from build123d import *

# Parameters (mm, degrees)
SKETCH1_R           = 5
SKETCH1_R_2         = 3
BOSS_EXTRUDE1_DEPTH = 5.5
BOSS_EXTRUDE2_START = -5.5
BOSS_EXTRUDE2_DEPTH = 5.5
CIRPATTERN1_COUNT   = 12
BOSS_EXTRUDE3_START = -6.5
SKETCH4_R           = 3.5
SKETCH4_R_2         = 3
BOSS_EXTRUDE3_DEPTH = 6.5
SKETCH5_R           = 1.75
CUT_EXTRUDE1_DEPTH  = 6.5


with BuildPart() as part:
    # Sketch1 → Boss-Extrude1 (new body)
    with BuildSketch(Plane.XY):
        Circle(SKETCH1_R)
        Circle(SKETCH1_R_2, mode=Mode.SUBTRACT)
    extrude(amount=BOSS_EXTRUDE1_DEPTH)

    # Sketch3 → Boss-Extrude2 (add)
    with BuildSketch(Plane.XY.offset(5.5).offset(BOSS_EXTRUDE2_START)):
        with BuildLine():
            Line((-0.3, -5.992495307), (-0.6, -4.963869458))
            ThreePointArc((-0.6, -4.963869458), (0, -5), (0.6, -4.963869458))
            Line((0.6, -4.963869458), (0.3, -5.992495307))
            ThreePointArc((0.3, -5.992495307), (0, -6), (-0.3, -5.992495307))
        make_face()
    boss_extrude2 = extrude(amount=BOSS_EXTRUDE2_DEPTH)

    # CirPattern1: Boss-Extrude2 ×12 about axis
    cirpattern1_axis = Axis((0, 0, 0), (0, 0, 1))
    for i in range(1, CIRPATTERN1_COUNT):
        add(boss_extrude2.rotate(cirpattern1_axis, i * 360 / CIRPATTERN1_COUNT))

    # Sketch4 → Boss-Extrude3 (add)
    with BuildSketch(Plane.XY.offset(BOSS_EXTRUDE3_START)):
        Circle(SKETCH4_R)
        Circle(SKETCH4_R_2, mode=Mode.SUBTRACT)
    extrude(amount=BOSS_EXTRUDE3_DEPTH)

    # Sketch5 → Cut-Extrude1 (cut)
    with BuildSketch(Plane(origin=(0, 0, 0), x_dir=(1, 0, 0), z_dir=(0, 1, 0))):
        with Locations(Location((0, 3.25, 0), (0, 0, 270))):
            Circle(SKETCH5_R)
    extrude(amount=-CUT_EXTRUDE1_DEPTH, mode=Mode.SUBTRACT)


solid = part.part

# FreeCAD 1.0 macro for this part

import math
import FreeCAD as App
import Part
import Sketcher

V = App.Vector
Q = App.Units.Quantity

doc = App.newDocument("Part")
body = doc.addObject("PartDesign::Body", "Body")

# Sketch on XY plane
sketch1 = body.newObject("Sketcher::SketchObject", "Sketch")
sketch1.AttachmentSupport = (doc.getObject("XY_Plane"), [""])
sketch1.MapMode = "FlatFace"
sketch1.addGeometry([
    Part.Circle(V(0, 0, 0), V(0, 0, 1), 5),
    Part.Circle(V(0, 0, 0), V(0, 0, 1), 3),
], False)
sketch1.addConstraint([
    Sketcher.Constraint("Coincident", 0, 3, -1, 1),
    Sketcher.Constraint("Coincident", 1, 3, -1, 1),
    Sketcher.Constraint("Diameter", 0, Q("10 mm")),
    Sketcher.Constraint("Diameter", 1, Q("6 mm")),
])
pad1 = body.newObject("PartDesign::Pad", "Pad")
pad1.Profile = sketch1
pad1.Length = 5.5

# Sketch on XY plane
sketch2 = body.newObject("Sketcher::SketchObject", "Sketch001")
sketch2.AttachmentSupport = (doc.getObject("XY_Plane"), [""])
sketch2.MapMode = "FlatFace"
sketch2.addGeometry([
    Part.LineSegment(V(-0.6, -5, 0), V(-0.3, -6, 0)),
    Part.ArcOfCircle(Part.Circle(V(0, 0, 0), V(0, 0, 1), 6), math.radians(-92.87), math.radians(-87.13)),
    Part.LineSegment(V(0.3, -6, 0), V(0.6, -5, 0)),
    Part.ArcOfCircle(Part.Circle(V(0, 0, 0), V(0, 0, 1), 5), math.radians(-96.89), math.radians(-83.11)),
], False)
sketch2.addConstraint([
    Sketcher.Constraint("Coincident", 0, 2, 1, 1),
    Sketcher.Constraint("Coincident", 1, 2, 2, 1),
    Sketcher.Constraint("Coincident", 2, 2, 3, 2),
    Sketcher.Constraint("Coincident", 3, 1, 0, 1),
    Sketcher.Constraint("Coincident", 1, 3, -1, 1),
    Sketcher.Constraint("Coincident", 3, 3, -1, 1),
    Sketcher.Constraint("Horizontal", 0, 2, 1, 2),
    Sketcher.Constraint("Horizontal", 2, 2, 3, 1),
    Sketcher.Constraint("Radius", 1, Q("6 mm")),
    Sketcher.Constraint("Radius", 3, Q("5 mm")),
    Sketcher.Constraint("DistanceX", 0, 2, -1, 1, Q("0.3 mm")),
    Sketcher.Constraint("DistanceX", -1, 1, 2, 2, Q("0.6 mm")),
])
pad2 = body.newObject("PartDesign::Pad", "Pad001")
pad2.Profile = sketch2
pad2.Length = 5.5
doc.recompute()

polarpattern = body.newObject("PartDesign::PolarPattern", "PolarPattern")
polarpattern.Originals = [pad2]
polarpattern.Axis = (doc.getObject("Z_Axis"), [""])
polarpattern.Angle = 360
polarpattern.Occurrences = 12
body.Tip = polarpattern

# Sketch on XY plane
sketch3 = body.newObject("Sketcher::SketchObject", "Sketch002")
sketch3.AttachmentSupport = (doc.getObject("XY_Plane"), [""])
sketch3.MapMode = "FlatFace"
sketch3.AttachmentOffset = App.Placement(V(0, 0, -6.5), App.Rotation())
sketch3.addGeometry([
    Part.Circle(V(0, 0, 0), V(0, 0, 1), 3.5),
    Part.Circle(V(0, 0, 0), V(0, 0, 1), 3),
], False)
sketch3.addConstraint([
    Sketcher.Constraint("Coincident", 0, 3, -1, 1),
    Sketcher.Constraint("Coincident", 1, 3, -1, 1),
    Sketcher.Constraint("Diameter", 0, Q("7 mm")),
    Sketcher.Constraint("Diameter", 1, Q("6 mm")),
])
pad3 = body.newObject("PartDesign::Pad", "Pad002")
pad3.Profile = sketch3
pad3.Length = 6.5

# Sketch on XZ plane
sketch4 = body.newObject("Sketcher::SketchObject", "Sketch003")
sketch4.AttachmentSupport = (doc.getObject("XZ_Plane"), [""])
sketch4.MapMode = "FlatFace"
sketch4.addGeometry(Part.Circle(V(0, -3.2, 0), V(0, 0, 1), 1.8), False)
sketch4.addConstraint([
    Sketcher.Constraint("PointOnObject", 0, 3, -2),
    Sketcher.Constraint("Diameter", 0, Q("3.5 mm")),
    Sketcher.Constraint("DistanceY", 0, 3, -1, 1, Q("3.25 mm")),
])
pocket1 = body.newObject("PartDesign::Pocket", "Pocket")
pocket1.Profile = sketch4
pocket1.Length = 6.5
pocket1.Reversed = True

doc.recompute()
